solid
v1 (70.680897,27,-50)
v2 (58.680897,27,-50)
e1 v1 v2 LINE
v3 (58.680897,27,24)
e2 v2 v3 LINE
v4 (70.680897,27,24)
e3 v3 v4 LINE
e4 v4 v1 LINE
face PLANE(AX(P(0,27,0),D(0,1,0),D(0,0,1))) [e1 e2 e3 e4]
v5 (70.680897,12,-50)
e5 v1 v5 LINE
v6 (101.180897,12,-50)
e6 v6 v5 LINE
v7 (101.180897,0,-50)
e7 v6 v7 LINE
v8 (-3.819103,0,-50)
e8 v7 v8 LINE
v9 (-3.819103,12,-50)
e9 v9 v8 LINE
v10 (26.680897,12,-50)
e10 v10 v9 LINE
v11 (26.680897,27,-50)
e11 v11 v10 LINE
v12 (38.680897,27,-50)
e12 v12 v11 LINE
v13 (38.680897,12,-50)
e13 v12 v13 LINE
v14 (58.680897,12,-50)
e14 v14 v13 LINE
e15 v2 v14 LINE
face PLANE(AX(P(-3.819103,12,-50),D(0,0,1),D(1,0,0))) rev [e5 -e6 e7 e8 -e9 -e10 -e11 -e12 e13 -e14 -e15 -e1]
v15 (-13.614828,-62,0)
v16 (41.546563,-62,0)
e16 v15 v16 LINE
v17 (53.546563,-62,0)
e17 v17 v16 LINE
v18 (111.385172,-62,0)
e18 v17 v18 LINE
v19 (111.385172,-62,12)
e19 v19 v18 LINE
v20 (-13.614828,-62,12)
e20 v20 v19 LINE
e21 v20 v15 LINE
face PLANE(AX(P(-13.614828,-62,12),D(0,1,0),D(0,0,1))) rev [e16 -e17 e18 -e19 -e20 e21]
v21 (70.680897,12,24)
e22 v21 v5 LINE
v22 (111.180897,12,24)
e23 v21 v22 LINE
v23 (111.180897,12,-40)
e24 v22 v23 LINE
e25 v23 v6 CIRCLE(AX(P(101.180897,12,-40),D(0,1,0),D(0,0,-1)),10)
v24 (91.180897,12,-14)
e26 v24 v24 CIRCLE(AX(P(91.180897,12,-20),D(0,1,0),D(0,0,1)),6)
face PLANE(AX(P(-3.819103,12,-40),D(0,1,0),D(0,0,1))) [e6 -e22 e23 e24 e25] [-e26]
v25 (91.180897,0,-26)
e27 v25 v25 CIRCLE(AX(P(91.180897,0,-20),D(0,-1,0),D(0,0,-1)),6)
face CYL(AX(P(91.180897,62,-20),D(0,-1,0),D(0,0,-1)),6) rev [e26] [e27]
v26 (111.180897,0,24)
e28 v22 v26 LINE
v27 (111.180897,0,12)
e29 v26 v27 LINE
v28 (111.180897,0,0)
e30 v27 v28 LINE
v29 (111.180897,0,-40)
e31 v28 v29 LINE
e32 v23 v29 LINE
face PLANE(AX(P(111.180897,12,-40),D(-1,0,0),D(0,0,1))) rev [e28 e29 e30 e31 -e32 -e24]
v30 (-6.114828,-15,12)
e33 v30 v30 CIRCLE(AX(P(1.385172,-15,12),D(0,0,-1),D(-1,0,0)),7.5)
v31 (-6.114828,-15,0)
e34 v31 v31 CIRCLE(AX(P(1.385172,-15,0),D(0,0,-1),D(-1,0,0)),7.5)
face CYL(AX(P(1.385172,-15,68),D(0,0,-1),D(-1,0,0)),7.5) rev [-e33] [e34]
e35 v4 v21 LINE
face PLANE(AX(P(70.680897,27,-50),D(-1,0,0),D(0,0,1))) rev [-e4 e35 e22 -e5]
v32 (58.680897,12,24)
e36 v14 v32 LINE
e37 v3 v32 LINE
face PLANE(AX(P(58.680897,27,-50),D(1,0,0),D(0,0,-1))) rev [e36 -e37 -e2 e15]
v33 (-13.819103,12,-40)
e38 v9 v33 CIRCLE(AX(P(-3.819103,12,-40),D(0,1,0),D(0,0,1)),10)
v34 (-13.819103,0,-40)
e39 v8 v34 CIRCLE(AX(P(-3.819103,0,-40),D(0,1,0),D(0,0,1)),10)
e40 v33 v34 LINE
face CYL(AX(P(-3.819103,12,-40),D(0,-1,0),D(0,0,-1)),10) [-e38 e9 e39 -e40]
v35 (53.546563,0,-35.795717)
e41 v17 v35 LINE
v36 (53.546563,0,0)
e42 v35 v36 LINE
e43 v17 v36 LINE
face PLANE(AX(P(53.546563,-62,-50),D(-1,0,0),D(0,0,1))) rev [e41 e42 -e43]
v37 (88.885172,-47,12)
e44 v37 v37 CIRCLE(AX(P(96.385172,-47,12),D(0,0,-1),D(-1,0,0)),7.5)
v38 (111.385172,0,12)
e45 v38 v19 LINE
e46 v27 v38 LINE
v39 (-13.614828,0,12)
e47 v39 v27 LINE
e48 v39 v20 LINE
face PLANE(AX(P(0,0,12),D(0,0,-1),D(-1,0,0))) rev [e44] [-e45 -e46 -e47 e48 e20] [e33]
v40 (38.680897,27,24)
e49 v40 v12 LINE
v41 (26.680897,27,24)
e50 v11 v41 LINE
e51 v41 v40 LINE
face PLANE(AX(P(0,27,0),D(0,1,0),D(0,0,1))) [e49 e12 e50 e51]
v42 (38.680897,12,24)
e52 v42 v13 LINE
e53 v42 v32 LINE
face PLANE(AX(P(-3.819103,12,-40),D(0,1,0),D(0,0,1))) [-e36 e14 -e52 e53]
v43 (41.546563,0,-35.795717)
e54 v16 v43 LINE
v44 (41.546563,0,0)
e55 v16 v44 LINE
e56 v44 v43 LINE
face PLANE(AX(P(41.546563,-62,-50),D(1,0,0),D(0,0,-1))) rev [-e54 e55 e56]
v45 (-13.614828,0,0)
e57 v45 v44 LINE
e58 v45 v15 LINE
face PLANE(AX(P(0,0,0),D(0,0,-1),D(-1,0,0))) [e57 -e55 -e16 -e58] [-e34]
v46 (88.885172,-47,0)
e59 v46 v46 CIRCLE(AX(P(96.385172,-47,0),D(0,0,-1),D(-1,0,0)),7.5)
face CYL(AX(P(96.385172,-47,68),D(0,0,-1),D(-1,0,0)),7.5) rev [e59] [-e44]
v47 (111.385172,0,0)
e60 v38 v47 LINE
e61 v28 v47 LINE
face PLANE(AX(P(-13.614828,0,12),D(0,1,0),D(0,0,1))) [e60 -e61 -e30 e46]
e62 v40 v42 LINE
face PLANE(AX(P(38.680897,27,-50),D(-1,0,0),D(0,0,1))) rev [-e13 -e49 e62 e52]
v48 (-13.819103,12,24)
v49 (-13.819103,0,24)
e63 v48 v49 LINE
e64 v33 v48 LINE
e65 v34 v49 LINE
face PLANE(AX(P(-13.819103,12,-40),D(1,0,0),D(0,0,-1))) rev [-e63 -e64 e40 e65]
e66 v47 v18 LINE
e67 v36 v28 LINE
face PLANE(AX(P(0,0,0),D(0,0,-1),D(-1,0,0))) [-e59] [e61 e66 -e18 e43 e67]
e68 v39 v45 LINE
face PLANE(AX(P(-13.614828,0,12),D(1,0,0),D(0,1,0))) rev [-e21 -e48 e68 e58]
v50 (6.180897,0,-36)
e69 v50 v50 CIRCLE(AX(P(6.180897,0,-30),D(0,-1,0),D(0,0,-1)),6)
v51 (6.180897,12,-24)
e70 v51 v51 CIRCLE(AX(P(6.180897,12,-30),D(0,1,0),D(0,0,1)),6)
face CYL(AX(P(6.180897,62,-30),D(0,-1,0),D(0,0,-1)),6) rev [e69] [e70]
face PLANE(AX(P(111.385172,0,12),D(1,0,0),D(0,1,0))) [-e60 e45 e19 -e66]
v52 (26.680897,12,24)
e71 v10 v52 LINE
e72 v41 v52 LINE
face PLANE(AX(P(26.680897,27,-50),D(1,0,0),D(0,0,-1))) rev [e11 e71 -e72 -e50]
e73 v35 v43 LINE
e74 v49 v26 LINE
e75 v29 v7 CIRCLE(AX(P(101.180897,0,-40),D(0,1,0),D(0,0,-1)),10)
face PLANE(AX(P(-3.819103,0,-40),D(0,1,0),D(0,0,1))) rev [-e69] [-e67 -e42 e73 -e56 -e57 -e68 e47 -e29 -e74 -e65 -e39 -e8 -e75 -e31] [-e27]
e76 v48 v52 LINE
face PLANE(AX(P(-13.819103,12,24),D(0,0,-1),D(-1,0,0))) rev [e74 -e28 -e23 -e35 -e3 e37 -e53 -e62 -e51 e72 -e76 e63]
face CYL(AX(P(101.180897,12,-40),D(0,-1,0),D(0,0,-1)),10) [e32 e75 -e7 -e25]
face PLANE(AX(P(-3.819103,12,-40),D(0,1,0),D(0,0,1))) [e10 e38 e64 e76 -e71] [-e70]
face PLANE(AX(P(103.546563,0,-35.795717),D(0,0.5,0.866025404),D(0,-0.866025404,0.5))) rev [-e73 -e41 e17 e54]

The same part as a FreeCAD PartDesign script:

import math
import FreeCAD as App
import Part
import Sketcher
Q = App.Units.Quantity


def add_polygon(sketch, points):
    """Adds a closed chain of lines whose ends are joined by coincident constraints."""
    first, n = sketch.GeometryCount, len(points)
    for a, b in zip(points, points[1:] + points[:1]):
        sketch.addGeometry(Part.LineSegment(App.Vector(*a, 0), App.Vector(*b, 0)), False)
    for i in range(n):
        sketch.addConstraint(Sketcher.Constraint("Coincident", first + i, 2, first + (i + 1) % n, 1))

doc = App.newDocument("Part")
body = doc.addObject("PartDesign::Body", "Body")

sketch1 = body.newObject("Sketcher::SketchObject", "Sketch")
sketch1.AttachmentSupport = (doc.getObject("XY_Plane"), [""])
sketch1.MapMode = "FlatFace"
add_polygon(sketch1, [(-14, 0), (-14, -62), (111, -62), (111, 0)])
sketch1.addConstraint([
    Sketcher.Constraint("Vertical", 0),
    Sketcher.Constraint("Horizontal", 1),
    Sketcher.Constraint("Vertical", 2),
    Sketcher.Constraint("Horizontal", 3),
    Sketcher.Constraint("PointOnObject", 2, 2, -1),
    Sketcher.Constraint("DistanceX", 1, 1, 1, 2, 125.0),
    Sketcher.Constraint("DistanceY", 0, 2, 0, 1, 62.0),
    Sketcher.Constraint("DistanceX", 0, 2, -1, 1, 13.614828),
])
pad1 = body.newObject("PartDesign::Pad", "Pad")
pad1.Profile = sketch1
pad1.Length = 12

sketch2 = body.newObject("Sketcher::SketchObject", "Sketch001")
sketch2.AttachmentSupport = (doc.getObject("XZ_Plane"), [""])
sketch2.MapMode = "FlatFace"
sketch2.addGeometry([
    Part.LineSegment(App.Vector(101, -50, 0), App.Vector(-4, -50, 0)),
    Part.ArcOfCircle(Part.Circle(App.Vector(-4, -40, 0), App.Vector(0, 0, 1), 10), math.radians(180), math.radians(270)),
    Part.LineSegment(App.Vector(-14, -40, 0), App.Vector(-14, 24, 0)),
    Part.LineSegment(App.Vector(-14, 24, 0), App.Vector(111, 24, 0)),
    Part.LineSegment(App.Vector(111, 24, 0), App.Vector(111, -40, 0)),
    Part.ArcOfCircle(Part.Circle(App.Vector(101, -40, 0), App.Vector(0, 0, 1), 10), math.radians(-90), math.radians(0)),
], False)
sketch2.addConstraint([
    Sketcher.Constraint("Tangent", 0, 2, 1, 2),
    Sketcher.Constraint("Tangent", 1, 1, 2, 1),
    Sketcher.Constraint("Coincident", 2, 2, 3, 1),
    Sketcher.Constraint("Coincident", 3, 2, 4, 1),
    Sketcher.Constraint("Tangent", 4, 2, 5, 2),
    Sketcher.Constraint("Tangent", 5, 1, 0, 1),
    Sketcher.Constraint("Horizontal", 0),
    Sketcher.Constraint("Vertical", 2),
    Sketcher.Constraint("Horizontal", 3),
    Sketcher.Constraint("Vertical", 4),
    Sketcher.Constraint("Equal", 1, 5),
    Sketcher.Constraint("Radius", 1, 10.0),
    Sketcher.Constraint("DistanceX", 0, 2, 0, 1, 105.0),
    Sketcher.Constraint("DistanceY", 2, 1, 2, 2, 64.0),
    Sketcher.Constraint("DistanceY", 1, 3, -1, 1, 40.0),
    Sketcher.Constraint("DistanceX", 1, 3, -1, 1, 3.819103),
])
pad2 = body.newObject("PartDesign::Pad", "Pad001")
pad2.Profile = sketch2
pad2.Length = 12
pad2.Reversed = True

sketch3 = body.newObject("Sketcher::SketchObject", "Sketch002")
sketch3.AttachmentSupport = (doc.getObject("XY_Plane"), [""])
sketch3.MapMode = "FlatFace"
sketch3.addGeometry([
    Part.Circle(App.Vector(96, -47, 0), App.Vector(0, 0, 1), 8),
    Part.Circle(App.Vector(1, -15, 0), App.Vector(0, 0, 1), 8),
], False)
sketch3.addConstraint([
    Sketcher.Constraint("Equal", 0, 1),
    Sketcher.Constraint("Diameter", 0, 15.0),
    Sketcher.Constraint("DistanceY", 0, 3, -1, 1, 47.0),
    Sketcher.Constraint("DistanceY", 1, 3, -1, 1, 15.0),
    Sketcher.Constraint("DistanceX", 1, 3, 0, 3, 95.0),
    Sketcher.Constraint("DistanceX", -1, 1, 0, 3, 96.385172),
])
pocket1 = body.newObject("PartDesign::Pocket", "Pocket")
pocket1.Profile = sketch3
pocket1.Length = 68
pocket1.Reversed = True

sketch4 = body.newObject("Sketcher::SketchObject", "Sketch003")
sketch4.AttachmentSupport = (doc.getObject("XZ_Plane"), [""])
sketch4.MapMode = "FlatFace"
sketch4.AttachmentOffset = App.Placement(App.Vector(0, 0, -12), App.Rotation())
add_polygon(sketch4, [(27, -50), (27, 24), (39, 24), (39, -50)])
add_polygon(sketch4, [(59, -50), (59, 24), (71, 24), (71, -50)])
sketch4.addConstraint([
    Sketcher.Constraint("Vertical", 0),
    Sketcher.Constraint("Horizontal", 1),
    Sketcher.Constraint("Vertical", 2),
    Sketcher.Constraint("Horizontal", 3),
    Sketcher.Constraint("Vertical", 4),
    Sketcher.Constraint("Horizontal", 5),
    Sketcher.Constraint("Vertical", 6),
    Sketcher.Constraint("Horizontal", 7),
    Sketcher.Constraint("Horizontal", 1, 2, 4, 2),
    Sketcher.Constraint("Horizontal", 3, 2, 6, 2),
    Sketcher.Constraint("Equal", 3, 5),
    Sketcher.Constraint("DistanceX", 1, 1, 1, 2, 12.0),
    Sketcher.Constraint("DistanceY", 0, 1, 0, 2, 74.0),
    Sketcher.Constraint("DistanceY", -1, 1, 0, 2, 24.0),
    Sketcher.Constraint("DistanceX", 1, 2, 4, 2, 20.0),
    Sketcher.Constraint("DistanceX", -1, 1, 0, 2, 26.680897),
])
pad3 = body.newObject("PartDesign::Pad", "Pad002")
pad3.Profile = sketch4
pad3.Length = 15
pad3.Reversed = True

sketch5 = body.newObject("Sketcher::SketchObject", "Sketch004")
sketch5.AttachmentSupport = (doc.getObject("XZ_Plane"), [""])
sketch5.MapMode = "FlatFace"
add_polygon(sketch5, [(42, 0), (42, -50), (54, -50), (54, 0)])
sketch5.addConstraint([
    Sketcher.Constraint("Vertical", 0),
    Sketcher.Constraint("Horizontal", 1),
    Sketcher.Constraint("Vertical", 2),
    Sketcher.Constraint("Horizontal", 3),
    Sketcher.Constraint("PointOnObject", 2, 2, -1),
    Sketcher.Constraint("DistanceX", 1, 1, 1, 2, 12.0),
    Sketcher.Constraint("DistanceY", 0, 2, 0, 1, 50.0),
    Sketcher.Constraint("DistanceX", -1, 1, 0, 2, 41.546563),
])
pad4 = body.newObject("PartDesign::Pad", "Pad003")
pad4.Profile = sketch5
pad4.Length = 62

sketch6 = body.newObject("Sketcher::SketchObject", "Sketch005")
sketch6.AttachmentSupport = (doc.getObject("YZ_Plane"), [""])
sketch6.MapMode = "FlatFace"
sketch6.AttachmentOffset = App.Placement(App.Vector(0, 0, 41.546563), App.Rotation())
add_polygon(sketch6, [(-62, 0), (0, -36), (0, -50), (-62, -50)])
sketch6.addConstraint([
    Sketcher.Constraint("Vertical", 1),
    Sketcher.Constraint("Horizontal", 2),
    Sketcher.Constraint("Vertical", 3),
    Sketcher.Constraint("PointOnObject", 0, 2, -2),
    Sketcher.Constraint("PointOnObject", 3, 2, -1),
    Sketcher.Constraint("DistanceX", 2, 2, 2, 1, 62.0),
    Sketcher.Constraint("DistanceY", 3, 1, 3, 2, 50.0),
    Sketcher.Constraint("Angle", 0, Q("-30 deg")),
])
pocket2 = body.newObject("PartDesign::Pocket", "Pocket001")
pocket2.Profile = sketch6
pocket2.Length = 62
pocket2.Reversed = True

sketch7 = body.newObject("Sketcher::SketchObject", "Sketch006")
sketch7.AttachmentSupport = (doc.getObject("XZ_Plane"), [""])
sketch7.MapMode = "FlatFace"
sketch7.addGeometry([
    Part.Circle(App.Vector(6, -30, 0), App.Vector(0, 0, 1), 6),
    Part.Circle(App.Vector(91, -20, 0), App.Vector(0, 0, 1), 6),
], False)
sketch7.addConstraint([
    Sketcher.Constraint("Equal", 0, 1),
    Sketcher.Constraint("Diameter", 0, 12.0),
    Sketcher.Constraint("DistanceY", 0, 3, -1, 1, 30.0),
    Sketcher.Constraint("DistanceY", 1, 3, -1, 1, 20.0),
    Sketcher.Constraint("DistanceX", 0, 3, 1, 3, 85.0),
    Sketcher.Constraint("DistanceX", -1, 1, 0, 3, 6.180897),
])
pocket3 = body.newObject("PartDesign::Pocket", "Pocket002")
pocket3.Profile = sketch7
pocket3.Length = 62

doc.recompute()
